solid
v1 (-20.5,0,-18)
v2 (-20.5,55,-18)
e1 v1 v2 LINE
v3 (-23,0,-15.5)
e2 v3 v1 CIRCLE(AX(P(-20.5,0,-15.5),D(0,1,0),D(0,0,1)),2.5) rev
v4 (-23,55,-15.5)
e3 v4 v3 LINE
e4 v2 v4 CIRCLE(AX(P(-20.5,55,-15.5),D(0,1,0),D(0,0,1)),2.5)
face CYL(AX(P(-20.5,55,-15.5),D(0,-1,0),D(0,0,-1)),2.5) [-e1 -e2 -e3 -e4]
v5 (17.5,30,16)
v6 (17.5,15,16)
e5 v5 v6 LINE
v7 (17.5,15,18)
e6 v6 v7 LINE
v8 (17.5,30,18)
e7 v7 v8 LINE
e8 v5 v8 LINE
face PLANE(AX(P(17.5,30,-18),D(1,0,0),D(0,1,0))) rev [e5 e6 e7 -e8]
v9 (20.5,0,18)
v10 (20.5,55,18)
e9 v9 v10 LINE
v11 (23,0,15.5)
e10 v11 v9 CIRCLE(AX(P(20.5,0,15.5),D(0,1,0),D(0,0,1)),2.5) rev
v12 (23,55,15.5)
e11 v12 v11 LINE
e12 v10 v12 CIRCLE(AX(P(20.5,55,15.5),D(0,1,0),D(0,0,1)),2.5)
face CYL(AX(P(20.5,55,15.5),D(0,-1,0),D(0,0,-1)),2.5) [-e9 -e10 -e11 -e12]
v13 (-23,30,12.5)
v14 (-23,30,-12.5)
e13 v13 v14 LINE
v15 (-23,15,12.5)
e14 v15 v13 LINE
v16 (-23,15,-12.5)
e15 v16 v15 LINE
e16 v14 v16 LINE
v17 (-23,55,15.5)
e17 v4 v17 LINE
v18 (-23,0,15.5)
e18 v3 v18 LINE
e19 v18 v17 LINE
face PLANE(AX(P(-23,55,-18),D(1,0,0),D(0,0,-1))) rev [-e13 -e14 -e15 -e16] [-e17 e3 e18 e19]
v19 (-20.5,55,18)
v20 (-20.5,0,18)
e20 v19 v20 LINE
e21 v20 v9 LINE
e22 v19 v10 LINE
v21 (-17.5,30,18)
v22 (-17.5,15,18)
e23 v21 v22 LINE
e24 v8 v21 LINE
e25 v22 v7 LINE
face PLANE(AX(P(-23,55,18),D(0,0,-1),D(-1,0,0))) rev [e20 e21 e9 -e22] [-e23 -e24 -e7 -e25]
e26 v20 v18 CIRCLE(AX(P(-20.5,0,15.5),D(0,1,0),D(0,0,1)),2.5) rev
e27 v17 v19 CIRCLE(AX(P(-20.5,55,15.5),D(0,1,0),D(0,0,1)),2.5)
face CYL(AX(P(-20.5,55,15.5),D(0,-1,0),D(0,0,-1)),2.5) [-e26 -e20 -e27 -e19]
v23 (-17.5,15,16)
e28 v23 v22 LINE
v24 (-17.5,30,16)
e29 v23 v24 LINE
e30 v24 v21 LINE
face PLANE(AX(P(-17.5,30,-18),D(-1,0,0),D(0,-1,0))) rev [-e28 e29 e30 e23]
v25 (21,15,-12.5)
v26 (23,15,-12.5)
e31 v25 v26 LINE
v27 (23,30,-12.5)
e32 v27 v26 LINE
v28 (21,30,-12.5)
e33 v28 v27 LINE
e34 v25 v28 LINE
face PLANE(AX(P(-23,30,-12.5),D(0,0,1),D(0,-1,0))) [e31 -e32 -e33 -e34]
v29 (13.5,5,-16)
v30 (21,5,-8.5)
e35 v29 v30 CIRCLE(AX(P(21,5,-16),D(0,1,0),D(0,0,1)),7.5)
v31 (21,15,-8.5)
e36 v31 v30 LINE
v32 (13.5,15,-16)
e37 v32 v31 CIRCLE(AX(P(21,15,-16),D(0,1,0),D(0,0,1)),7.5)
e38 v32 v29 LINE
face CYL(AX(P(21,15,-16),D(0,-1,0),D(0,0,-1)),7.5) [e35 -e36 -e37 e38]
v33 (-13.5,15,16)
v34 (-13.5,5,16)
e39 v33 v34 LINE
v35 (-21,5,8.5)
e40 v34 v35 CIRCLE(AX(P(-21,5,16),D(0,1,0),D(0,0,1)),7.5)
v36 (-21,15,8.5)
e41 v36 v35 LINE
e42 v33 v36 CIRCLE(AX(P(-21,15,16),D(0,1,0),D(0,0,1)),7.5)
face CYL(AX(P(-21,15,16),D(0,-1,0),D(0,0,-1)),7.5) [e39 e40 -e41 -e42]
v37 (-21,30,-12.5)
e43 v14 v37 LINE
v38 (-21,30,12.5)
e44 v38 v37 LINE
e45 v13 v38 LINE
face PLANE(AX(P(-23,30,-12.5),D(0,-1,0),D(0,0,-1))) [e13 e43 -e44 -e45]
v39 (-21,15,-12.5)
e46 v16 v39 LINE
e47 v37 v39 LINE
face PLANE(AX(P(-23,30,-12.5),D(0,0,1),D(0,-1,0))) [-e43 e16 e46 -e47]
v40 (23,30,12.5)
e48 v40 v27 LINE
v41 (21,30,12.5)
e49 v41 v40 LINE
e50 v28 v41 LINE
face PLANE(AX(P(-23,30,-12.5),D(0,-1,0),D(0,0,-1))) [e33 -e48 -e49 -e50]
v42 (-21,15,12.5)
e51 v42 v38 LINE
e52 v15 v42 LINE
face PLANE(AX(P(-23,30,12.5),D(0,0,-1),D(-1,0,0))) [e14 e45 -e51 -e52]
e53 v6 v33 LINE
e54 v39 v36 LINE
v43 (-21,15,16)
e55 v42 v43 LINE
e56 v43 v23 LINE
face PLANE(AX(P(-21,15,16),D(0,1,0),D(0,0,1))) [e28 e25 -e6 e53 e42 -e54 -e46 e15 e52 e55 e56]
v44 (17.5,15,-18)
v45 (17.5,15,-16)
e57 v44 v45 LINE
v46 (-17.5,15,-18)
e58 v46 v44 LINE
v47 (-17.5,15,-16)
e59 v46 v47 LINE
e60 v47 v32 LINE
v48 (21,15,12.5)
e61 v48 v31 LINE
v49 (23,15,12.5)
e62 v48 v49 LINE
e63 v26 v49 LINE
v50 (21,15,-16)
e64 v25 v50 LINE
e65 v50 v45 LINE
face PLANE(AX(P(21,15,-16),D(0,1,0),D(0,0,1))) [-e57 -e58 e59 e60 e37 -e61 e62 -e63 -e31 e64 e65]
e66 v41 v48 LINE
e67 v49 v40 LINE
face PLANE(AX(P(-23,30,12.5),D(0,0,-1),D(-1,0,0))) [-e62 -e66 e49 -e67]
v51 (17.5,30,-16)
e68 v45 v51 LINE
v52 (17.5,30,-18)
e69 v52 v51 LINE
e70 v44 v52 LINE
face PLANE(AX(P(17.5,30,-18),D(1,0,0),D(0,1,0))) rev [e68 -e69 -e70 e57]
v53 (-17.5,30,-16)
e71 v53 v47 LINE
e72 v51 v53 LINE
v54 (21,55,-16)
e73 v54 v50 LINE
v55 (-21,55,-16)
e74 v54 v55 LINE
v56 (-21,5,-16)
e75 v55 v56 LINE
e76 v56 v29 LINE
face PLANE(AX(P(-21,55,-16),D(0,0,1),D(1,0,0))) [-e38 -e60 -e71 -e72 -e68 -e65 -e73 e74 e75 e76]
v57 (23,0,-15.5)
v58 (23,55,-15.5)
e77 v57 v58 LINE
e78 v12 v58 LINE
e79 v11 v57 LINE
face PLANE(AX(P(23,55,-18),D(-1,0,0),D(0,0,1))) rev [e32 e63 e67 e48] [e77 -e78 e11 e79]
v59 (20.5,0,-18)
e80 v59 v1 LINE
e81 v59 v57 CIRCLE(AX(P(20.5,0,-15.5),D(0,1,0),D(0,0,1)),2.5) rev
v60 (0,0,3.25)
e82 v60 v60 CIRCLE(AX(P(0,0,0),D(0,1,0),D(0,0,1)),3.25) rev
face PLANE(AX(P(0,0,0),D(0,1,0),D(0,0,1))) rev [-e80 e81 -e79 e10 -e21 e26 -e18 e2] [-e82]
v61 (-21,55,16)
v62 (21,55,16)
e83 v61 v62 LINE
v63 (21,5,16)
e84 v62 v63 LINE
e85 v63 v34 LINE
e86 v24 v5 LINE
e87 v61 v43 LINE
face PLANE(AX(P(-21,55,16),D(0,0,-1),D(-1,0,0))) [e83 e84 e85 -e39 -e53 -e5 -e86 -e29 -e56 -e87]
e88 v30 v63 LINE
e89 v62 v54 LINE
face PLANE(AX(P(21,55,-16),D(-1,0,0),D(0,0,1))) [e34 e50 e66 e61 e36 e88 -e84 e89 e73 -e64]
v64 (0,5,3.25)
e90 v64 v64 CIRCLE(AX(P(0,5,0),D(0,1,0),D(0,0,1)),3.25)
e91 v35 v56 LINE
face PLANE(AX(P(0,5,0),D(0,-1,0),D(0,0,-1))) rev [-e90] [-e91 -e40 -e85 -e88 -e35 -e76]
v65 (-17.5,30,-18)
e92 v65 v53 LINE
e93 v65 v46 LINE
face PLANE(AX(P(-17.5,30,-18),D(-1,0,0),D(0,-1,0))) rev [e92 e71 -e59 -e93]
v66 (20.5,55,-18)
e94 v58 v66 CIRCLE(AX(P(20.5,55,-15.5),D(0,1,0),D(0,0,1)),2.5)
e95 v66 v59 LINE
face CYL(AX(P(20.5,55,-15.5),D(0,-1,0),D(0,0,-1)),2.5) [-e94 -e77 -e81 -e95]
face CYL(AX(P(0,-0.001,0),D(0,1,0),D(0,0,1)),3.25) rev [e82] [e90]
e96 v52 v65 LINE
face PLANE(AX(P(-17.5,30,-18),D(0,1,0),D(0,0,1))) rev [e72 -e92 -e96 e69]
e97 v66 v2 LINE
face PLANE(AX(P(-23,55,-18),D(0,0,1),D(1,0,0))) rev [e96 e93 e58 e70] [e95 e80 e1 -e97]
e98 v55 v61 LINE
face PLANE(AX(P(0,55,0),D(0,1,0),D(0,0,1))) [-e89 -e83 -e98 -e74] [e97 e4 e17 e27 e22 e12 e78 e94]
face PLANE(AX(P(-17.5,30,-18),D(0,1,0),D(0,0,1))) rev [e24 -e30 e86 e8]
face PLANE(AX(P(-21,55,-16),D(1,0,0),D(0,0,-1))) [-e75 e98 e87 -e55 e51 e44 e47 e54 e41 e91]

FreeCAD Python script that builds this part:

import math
import FreeCAD as App
import Part
import Sketcher

V = App.Vector
Q = App.Units.Quantity


def edges_at(feature, points):
    """Names of the edges that pass closest to the given points."""
    edges = feature.Shape.Edges
    near = lambda p: min(range(len(edges)), key=lambda i: edges[i].distToShape(Part.Vertex(*p))[0])
    return sorted({f"Edge{near(p) + 1}" for p in points})

doc = App.newDocument("Part")
body = doc.addObject("PartDesign::Body", "Body")

sketch1 = body.newObject("Sketcher::SketchObject", "Sketch")
sketch1.AttachmentSupport = (doc.getObject("XZ_Plane"), [""])
sketch1.MapMode = "FlatFace"
sketch1.addGeometry([
    Part.LineSegment(V(-23, -18, 0), V(-23, 18, 0)),
    Part.LineSegment(V(-23, 18, 0), V(23, 18, 0)),
    Part.LineSegment(V(23, 18, 0), V(23, -18, 0)),
    Part.LineSegment(V(23, -18, 0), V(-23, -18, 0)),
    Part.LineSegment(V(21, 16, 0), V(-21, 16, 0)),
    Part.LineSegment(V(-21, 16, 0), V(-21, -16, 0)),
    Part.LineSegment(V(-21, -16, 0), V(21, -16, 0)),
    Part.LineSegment(V(21, -16, 0), V(21, 16, 0)),
], False)
sketch1.addConstraint([
    Sketcher.Constraint("Coincident", 0, 2, 1, 1),
    Sketcher.Constraint("Coincident", 1, 2, 2, 1),
    Sketcher.Constraint("Coincident", 2, 2, 3, 1),
    Sketcher.Constraint("Coincident", 3, 2, 0, 1),
    Sketcher.Constraint("Coincident", 4, 2, 5, 1),
    Sketcher.Constraint("Coincident", 5, 2, 6, 1),
    Sketcher.Constraint("Coincident", 6, 2, 7, 1),
    Sketcher.Constraint("Coincident", 7, 2, 4, 1),
    Sketcher.Constraint("Vertical", 0),
    Sketcher.Constraint("Horizontal", 1),
    Sketcher.Constraint("Vertical", 2),
    Sketcher.Constraint("Horizontal", 3),
    Sketcher.Constraint("Horizontal", 4),
    Sketcher.Constraint("Vertical", 5),
    Sketcher.Constraint("Horizontal", 6),
    Sketcher.Constraint("Vertical", 7),
    Sketcher.Constraint("Symmetric", 0, 2, 2, 2, -1, 1),
    Sketcher.Constraint("Symmetric", 4, 2, 6, 2, -1, 1),
    Sketcher.Constraint("DistanceX", 1, 1, 1, 2, Q("46 mm")),
    Sketcher.Constraint("DistanceX", 4, 2, 4, 1, Q("42 mm")),
    Sketcher.Constraint("DistanceY", 0, 1, 0, 2, Q("36 mm")),
    Sketcher.Constraint("DistanceY", 5, 2, 5, 1, Q("32 mm")),
])
pad1 = body.newObject("PartDesign::Pad", "Pad")
pad1.Profile = sketch1
pad1.Length = 55
pad1.Reversed = True

sketch2 = body.newObject("Sketcher::SketchObject", "Sketch001")
sketch2.AttachmentSupport = (doc.getObject("XZ_Plane"), [""])
sketch2.MapMode = "FlatFace"
sketch2.addGeometry([
    Part.LineSegment(V(-21, 16, 0), V(-21, -16, 0)),
    Part.LineSegment(V(-21, -16, 0), V(21, -16, 0)),
    Part.LineSegment(V(21, -16, 0), V(21, 16, 0)),
    Part.LineSegment(V(21, 16, 0), V(-21, 16, 0)),
], False)
sketch2.addConstraint([
    Sketcher.Constraint("Coincident", 0, 2, 1, 1),
    Sketcher.Constraint("Coincident", 1, 2, 2, 1),
    Sketcher.Constraint("Coincident", 2, 2, 3, 1),
    Sketcher.Constraint("Coincident", 3, 2, 0, 1),
    Sketcher.Constraint("Vertical", 0),
    Sketcher.Constraint("Horizontal", 1),
    Sketcher.Constraint("Vertical", 2),
    Sketcher.Constraint("Horizontal", 3),
    Sketcher.Constraint("Symmetric", 0, 2, 2, 2, -1, 1),
    Sketcher.Constraint("DistanceX", 1, 1, 1, 2, Q("42 mm")),
    Sketcher.Constraint("DistanceY", 0, 2, 0, 1, Q("32 mm")),
])
pad2 = body.newObject("PartDesign::Pad", "Pad001")
pad2.Profile = sketch2
pad2.Length = 5
pad2.Reversed = True
doc.recompute()

fillet = body.newObject("PartDesign::Fillet", "Fillet")
fillet.Base = (pad2, edges_at(pad2, [
    (-23, 27.5, -18),
    (23, 27.5, -18),
    (23, 27.5, 18),
    (-23, 27.5, 18),
]))
fillet.Radius = 2.5

sketch3 = body.newObject("Sketcher::SketchObject", "Sketch002")
sketch3.AttachmentSupport = (doc.getObject("XZ_Plane"), [""])
sketch3.MapMode = "FlatFace"
sketch3.AttachmentOffset = App.Placement(V(0, 0, -5), App.Rotation())
sketch3.addGeometry([
    Part.LineSegment(V(-21, 16, 0), V(-14, 16, 0)),
    Part.ArcOfCircle(Part.Circle(V(-21, 16, 0), V(0, 0, 1), 8), math.radians(-90), math.radians(0)),
    Part.LineSegment(V(-21, 8, 0), V(-21, 16, 0)),
    Part.LineSegment(V(21, -16, 0), V(14, -16, 0)),
    Part.ArcOfCircle(Part.Circle(V(21, -16, 0), V(0, 0, 1), 8), math.radians(90), math.radians(180)),
    Part.LineSegment(V(21, -8, 0), V(21, -16, 0)),
], False)
sketch3.addConstraint([
    Sketcher.Constraint("Coincident", 0, 2, 1, 2),
    Sketcher.Constraint("Coincident", 1, 1, 2, 1),
    Sketcher.Constraint("Coincident", 2, 2, 0, 1),
    Sketcher.Constraint("Coincident", 3, 2, 4, 2),
    Sketcher.Constraint("Coincident", 4, 1, 5, 1),
    Sketcher.Constraint("Coincident", 5, 2, 3, 1),
    Sketcher.Constraint("Horizontal", 0),
    Sketcher.Constraint("Vertical", 2),
    Sketcher.Constraint("Horizontal", 3),
    Sketcher.Constraint("Vertical", 5),
    Sketcher.Constraint("Coincident", 2, 2, 1, 3),
    Sketcher.Constraint("Coincident", 5, 2, 4, 3),
    Sketcher.Constraint("Equal", 1, 4),
    Sketcher.Constraint("Symmetric", 1, 3, 4, 3, -1, 1),
    Sketcher.Constraint("Radius", 1, Q("7.5 mm")),
    Sketcher.Constraint("DistanceX", 1, 3, -1, 1, Q("21 mm")),
    Sketcher.Constraint("DistanceY", -1, 1, 1, 3, Q("16 mm")),
])
pad3 = body.newObject("PartDesign::Pad", "Pad002")
pad3.Profile = sketch3
pad3.Length = 10
pad3.Reversed = True

sketch4 = body.newObject("Sketcher::SketchObject", "Sketch003")
sketch4.AttachmentSupport = (doc.getObject("YZ_Plane"), [""])
sketch4.MapMode = "FlatFace"
sketch4.AttachmentOffset = App.Placement(V(0, 0, 23), App.Rotation())
sketch4.addGeometry([
    Part.LineSegment(V(30, -12, 0), V(15, -12, 0)),
    Part.LineSegment(V(15, -12, 0), V(15, 12, 0)),
    Part.LineSegment(V(15, 12, 0), V(30, 12, 0)),
    Part.LineSegment(V(30, 12, 0), V(30, -12, 0)),
], False)
sketch4.addConstraint([
    Sketcher.Constraint("Coincident", 0, 2, 1, 1),
    Sketcher.Constraint("Coincident", 1, 2, 2, 1),
    Sketcher.Constraint("Coincident", 2, 2, 3, 1),
    Sketcher.Constraint("Coincident", 3, 2, 0, 1),
    Sketcher.Constraint("Horizontal", 0),
    Sketcher.Constraint("Vertical", 1),
    Sketcher.Constraint("Horizontal", 2),
    Sketcher.Constraint("Vertical", 3),
    Sketcher.Constraint("DistanceX", 0, 2, 0, 1, Q("15 mm")),
    Sketcher.Constraint("DistanceY", 1, 1, 1, 2, Q("25 mm")),
    Sketcher.Constraint("DistanceX", -1, 1, 0, 2, Q("15 mm")),
    Sketcher.Constraint("DistanceY", 0, 2, -1, 1, Q("12.5 mm")),
])
pocket1 = body.newObject("PartDesign::Pocket", "Pocket")
pocket1.Profile = sketch4
pocket1.Type = "ThroughAll"

sketch5 = body.newObject("Sketcher::SketchObject", "Sketch004")
sketch5.AttachmentSupport = (doc.getObject("XY_Plane"), [""])
sketch5.MapMode = "FlatFace"
sketch5.AttachmentOffset = App.Placement(V(0, 0, 18), App.Rotation())
sketch5.addGeometry([
    Part.LineSegment(V(-18, 30, 0), V(-18, 15, 0)),
    Part.LineSegment(V(-18, 15, 0), V(18, 15, 0)),
    Part.LineSegment(V(18, 15, 0), V(18, 30, 0)),
    Part.LineSegment(V(18, 30, 0), V(-18, 30, 0)),
], False)
sketch5.addConstraint([
    Sketcher.Constraint("Coincident", 0, 2, 1, 1),
    Sketcher.Constraint("Coincident", 1, 2, 2, 1),
    Sketcher.Constraint("Coincident", 2, 2, 3, 1),
    Sketcher.Constraint("Coincident", 3, 2, 0, 1),
    Sketcher.Constraint("Vertical", 0),
    Sketcher.Constraint("Horizontal", 1),
    Sketcher.Constraint("Vertical", 2),
    Sketcher.Constraint("Horizontal", 3),
    Sketcher.Constraint("DistanceX", 1, 1, 1, 2, Q("35 mm")),
    Sketcher.Constraint("DistanceY", 0, 2, 0, 1, Q("15 mm")),
    Sketcher.Constraint("DistanceY", -1, 1, 0, 2, Q("15 mm")),
    Sketcher.Constraint("DistanceX", 0, 2, -1, 1, Q("17.5 mm")),
])
pocket2 = body.newObject("PartDesign::Pocket", "Pocket001")
pocket2.Profile = sketch5
pocket2.Type = "ThroughAll"

sketch6 = body.newObject("Sketcher::SketchObject", "Sketch005")
sketch6.AttachmentSupport = (doc.getObject("XZ_Plane"), [""])
sketch6.MapMode = "FlatFace"
sketch6.AttachmentOffset = App.Placement(V(0, 0, -5), App.Rotation())
sketch6.addGeometry(Part.Circle(V(0, 0, 0), V(0, 0, 1), 3.2), False)
sketch6.addConstraint([
    Sketcher.Constraint("Coincident", 0, 3, -1, 1),
    Sketcher.Constraint("Diameter", 0, Q("6.5 mm")),
])
pocket3 = body.newObject("PartDesign::Pocket", "Pocket002")
pocket3.Profile = sketch6
pocket3.Type = "UpToFirst"
pocket3.Reversed = True

doc.recompute()
